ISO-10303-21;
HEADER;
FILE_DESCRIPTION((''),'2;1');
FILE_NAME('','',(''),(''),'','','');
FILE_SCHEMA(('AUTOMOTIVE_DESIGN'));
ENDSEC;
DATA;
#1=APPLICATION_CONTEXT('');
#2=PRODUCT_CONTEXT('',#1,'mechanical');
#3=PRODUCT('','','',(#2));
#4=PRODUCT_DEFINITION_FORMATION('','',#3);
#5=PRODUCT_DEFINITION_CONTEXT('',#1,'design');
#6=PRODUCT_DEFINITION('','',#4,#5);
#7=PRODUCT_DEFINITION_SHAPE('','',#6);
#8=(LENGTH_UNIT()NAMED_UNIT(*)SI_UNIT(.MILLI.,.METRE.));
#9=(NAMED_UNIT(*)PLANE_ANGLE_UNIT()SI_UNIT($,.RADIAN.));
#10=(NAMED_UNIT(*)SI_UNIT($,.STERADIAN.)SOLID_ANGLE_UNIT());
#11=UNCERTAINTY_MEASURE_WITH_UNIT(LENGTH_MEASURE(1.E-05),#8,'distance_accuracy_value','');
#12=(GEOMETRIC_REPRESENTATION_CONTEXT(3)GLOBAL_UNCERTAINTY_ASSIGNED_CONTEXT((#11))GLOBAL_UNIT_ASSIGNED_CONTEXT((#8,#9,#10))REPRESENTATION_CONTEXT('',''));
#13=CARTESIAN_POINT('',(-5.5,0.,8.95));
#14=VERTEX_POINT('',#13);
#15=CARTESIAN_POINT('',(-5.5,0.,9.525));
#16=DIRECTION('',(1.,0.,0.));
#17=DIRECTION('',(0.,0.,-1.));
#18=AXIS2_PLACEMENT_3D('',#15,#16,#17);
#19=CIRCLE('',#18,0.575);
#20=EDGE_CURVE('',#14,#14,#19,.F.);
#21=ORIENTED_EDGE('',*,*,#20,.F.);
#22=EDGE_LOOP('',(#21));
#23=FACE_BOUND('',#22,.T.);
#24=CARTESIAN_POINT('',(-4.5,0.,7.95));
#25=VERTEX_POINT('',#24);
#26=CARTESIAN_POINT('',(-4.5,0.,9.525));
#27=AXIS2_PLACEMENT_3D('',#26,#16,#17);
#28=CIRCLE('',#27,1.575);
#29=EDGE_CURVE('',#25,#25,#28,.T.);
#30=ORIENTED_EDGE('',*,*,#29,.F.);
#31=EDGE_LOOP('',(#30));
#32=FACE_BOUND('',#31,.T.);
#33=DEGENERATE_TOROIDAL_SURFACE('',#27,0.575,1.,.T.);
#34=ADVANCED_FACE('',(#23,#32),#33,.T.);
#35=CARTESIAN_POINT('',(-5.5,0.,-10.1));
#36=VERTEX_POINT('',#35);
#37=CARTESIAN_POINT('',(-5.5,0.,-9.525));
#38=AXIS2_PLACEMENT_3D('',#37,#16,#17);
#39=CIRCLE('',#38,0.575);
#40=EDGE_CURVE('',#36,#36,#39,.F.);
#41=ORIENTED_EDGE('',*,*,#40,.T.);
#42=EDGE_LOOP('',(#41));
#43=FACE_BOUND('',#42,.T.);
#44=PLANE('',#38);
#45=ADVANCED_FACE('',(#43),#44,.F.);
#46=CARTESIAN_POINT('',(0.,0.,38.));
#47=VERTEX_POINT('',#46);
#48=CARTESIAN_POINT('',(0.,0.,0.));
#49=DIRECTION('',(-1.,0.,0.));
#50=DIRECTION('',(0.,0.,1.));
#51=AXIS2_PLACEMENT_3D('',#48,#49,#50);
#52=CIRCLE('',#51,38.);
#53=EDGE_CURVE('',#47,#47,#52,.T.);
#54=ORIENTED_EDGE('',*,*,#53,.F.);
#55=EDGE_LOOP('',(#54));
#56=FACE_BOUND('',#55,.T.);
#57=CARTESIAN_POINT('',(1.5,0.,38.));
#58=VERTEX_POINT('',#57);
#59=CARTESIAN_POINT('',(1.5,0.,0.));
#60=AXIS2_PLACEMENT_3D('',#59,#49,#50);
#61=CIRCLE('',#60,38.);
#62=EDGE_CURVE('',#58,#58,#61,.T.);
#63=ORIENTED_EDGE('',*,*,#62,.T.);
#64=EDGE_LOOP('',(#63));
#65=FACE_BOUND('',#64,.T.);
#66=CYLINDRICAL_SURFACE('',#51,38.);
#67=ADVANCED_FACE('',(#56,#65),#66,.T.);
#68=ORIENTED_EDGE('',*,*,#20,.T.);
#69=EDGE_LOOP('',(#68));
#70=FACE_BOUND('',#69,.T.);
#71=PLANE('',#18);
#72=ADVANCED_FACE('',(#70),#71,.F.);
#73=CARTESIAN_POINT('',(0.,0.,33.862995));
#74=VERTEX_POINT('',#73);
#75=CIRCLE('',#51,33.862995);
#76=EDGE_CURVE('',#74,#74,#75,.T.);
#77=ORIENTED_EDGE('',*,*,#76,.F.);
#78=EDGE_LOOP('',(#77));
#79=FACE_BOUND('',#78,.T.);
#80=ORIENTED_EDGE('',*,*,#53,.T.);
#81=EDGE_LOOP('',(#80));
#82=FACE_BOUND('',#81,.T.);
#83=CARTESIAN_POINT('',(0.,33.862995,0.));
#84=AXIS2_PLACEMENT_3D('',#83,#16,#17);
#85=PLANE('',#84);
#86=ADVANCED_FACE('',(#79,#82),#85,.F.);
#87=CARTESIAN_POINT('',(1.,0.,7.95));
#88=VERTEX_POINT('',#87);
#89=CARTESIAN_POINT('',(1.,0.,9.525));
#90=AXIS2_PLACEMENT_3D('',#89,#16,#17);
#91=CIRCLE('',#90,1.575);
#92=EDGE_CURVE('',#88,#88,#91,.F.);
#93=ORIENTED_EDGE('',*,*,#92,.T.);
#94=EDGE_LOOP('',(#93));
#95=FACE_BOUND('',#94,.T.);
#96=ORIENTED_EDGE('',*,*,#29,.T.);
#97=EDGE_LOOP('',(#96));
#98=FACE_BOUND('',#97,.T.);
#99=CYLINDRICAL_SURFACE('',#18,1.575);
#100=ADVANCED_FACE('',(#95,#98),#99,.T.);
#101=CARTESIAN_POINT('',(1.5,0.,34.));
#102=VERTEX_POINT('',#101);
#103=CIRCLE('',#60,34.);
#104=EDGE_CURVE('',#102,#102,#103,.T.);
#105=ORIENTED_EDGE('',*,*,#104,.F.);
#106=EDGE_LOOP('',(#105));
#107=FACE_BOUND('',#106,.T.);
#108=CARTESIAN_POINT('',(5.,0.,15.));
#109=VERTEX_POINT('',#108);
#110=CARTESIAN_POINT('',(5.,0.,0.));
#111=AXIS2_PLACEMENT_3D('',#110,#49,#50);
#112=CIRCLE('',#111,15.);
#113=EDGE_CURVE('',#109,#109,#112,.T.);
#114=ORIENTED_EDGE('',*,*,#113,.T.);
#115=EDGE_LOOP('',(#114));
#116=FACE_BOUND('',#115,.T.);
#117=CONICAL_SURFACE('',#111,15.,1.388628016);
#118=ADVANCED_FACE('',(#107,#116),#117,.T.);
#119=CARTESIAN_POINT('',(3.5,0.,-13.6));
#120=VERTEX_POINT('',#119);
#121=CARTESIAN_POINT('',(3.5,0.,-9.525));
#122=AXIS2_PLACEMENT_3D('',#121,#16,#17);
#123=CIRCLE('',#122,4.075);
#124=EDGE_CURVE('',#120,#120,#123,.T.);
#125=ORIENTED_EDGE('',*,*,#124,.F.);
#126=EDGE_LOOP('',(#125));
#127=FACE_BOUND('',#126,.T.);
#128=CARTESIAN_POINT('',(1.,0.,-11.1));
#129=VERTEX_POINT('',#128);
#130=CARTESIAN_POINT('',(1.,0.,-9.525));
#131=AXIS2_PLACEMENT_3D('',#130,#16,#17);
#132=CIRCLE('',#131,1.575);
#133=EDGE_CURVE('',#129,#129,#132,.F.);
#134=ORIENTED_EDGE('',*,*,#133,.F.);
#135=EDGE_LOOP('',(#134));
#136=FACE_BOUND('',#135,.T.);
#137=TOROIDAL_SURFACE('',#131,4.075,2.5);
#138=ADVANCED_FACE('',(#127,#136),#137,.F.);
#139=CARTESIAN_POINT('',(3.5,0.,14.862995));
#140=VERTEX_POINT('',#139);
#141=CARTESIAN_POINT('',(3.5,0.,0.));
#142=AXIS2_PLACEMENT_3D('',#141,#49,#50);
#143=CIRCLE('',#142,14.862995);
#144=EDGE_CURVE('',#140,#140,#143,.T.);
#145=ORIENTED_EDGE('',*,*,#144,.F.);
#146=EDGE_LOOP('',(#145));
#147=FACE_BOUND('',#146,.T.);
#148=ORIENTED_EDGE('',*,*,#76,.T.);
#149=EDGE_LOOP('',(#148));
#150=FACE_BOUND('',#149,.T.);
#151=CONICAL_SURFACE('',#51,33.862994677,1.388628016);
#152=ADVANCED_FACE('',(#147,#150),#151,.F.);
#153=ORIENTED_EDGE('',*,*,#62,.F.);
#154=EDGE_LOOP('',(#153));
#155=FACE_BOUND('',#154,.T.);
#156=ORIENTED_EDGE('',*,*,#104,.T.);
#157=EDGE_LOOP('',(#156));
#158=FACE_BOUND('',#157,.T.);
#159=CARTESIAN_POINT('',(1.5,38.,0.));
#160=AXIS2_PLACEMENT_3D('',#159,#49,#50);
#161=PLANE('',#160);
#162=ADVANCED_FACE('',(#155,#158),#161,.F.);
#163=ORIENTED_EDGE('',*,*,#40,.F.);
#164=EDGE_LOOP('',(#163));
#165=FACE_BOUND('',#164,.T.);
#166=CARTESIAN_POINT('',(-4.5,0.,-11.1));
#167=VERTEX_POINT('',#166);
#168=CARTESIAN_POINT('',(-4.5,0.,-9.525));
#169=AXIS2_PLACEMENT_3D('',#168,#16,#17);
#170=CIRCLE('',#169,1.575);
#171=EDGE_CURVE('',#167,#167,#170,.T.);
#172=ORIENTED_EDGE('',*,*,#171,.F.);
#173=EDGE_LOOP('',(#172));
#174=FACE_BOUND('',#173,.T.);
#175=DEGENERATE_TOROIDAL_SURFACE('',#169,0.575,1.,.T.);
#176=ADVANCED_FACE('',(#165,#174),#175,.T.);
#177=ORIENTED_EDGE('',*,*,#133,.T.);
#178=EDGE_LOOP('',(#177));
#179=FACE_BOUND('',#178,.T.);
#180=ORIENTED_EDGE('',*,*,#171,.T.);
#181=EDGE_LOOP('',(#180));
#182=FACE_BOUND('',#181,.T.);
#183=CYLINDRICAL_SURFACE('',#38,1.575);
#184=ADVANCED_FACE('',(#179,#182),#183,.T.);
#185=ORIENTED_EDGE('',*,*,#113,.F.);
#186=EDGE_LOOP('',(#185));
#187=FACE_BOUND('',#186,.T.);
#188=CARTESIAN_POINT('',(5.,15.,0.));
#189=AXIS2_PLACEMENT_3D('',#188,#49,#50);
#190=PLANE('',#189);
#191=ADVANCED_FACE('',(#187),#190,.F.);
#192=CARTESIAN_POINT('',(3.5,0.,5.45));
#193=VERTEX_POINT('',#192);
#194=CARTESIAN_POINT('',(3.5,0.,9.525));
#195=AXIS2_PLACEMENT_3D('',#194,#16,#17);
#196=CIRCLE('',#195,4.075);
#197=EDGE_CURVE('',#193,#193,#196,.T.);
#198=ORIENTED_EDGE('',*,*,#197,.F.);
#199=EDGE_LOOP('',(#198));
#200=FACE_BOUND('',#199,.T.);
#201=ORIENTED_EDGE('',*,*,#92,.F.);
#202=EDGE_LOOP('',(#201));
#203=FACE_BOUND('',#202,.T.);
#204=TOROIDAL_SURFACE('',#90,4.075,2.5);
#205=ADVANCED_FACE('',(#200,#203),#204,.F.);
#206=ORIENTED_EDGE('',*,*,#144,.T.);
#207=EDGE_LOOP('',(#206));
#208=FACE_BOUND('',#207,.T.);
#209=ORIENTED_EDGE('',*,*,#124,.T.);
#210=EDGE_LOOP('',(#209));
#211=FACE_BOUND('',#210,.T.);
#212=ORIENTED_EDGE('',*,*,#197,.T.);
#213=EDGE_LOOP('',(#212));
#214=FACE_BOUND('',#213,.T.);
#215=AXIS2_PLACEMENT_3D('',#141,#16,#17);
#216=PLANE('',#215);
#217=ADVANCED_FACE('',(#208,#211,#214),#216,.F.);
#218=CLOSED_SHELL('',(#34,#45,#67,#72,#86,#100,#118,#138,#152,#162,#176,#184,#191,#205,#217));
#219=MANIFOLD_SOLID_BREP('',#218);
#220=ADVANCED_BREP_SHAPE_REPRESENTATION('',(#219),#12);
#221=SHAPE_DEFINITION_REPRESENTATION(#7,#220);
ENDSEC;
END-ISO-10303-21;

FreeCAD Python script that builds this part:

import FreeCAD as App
import Part
import Sketcher
Q = App.Units.Quantity


def edges_at(feature, points):
    """Names of the edges that pass closest to the given points."""
    edges = feature.Shape.Edges
    near = lambda p: min(range(len(edges)), key=lambda i: edges[i].distToShape(Part.Vertex(*p))[0])
    return sorted({f"Edge{near(p) + 1}" for p in points})

doc = App.newDocument("Part")
body = doc.addObject("PartDesign::Body", "Body")

sketch1 = body.newObject("Sketcher::SketchObject", "Sketch")
sketch1.AttachmentSupport = (doc.getObject("XY_Plane"), [""])
sketch1.MapMode = "FlatFace"
sketch1.addGeometry([
    Part.LineSegment(App.Vector(0, 38, 0), App.Vector(0, 33.862995, 0)),
    Part.LineSegment(App.Vector(0, 33.862995, 0), App.Vector(3.5, 14.862995, 0)),
    Part.LineSegment(App.Vector(3.5, 14.862995, 0), App.Vector(3.5, 0, 0)),
    Part.LineSegment(App.Vector(3.5, 0, 0), App.Vector(5, 0, 0)),
    Part.LineSegment(App.Vector(5, 0, 0), App.Vector(5, 15, 0)),
    Part.LineSegment(App.Vector(5, 15, 0), App.Vector(1.5, 34, 0)),
    Part.LineSegment(App.Vector(1.5, 34, 0), App.Vector(1.5, 38, 0)),
    Part.LineSegment(App.Vector(1.5, 38, 0), App.Vector(0, 38, 0)),
], False)
sketch1.addConstraint([
    Sketcher.Constraint("Coincident", 0, 2, 1, 1),
    Sketcher.Constraint("Coincident", 1, 2, 2, 1),
    Sketcher.Constraint("Coincident", 2, 2, 3, 1),
    Sketcher.Constraint("Coincident", 3, 2, 4, 1),
    Sketcher.Constraint("Coincident", 4, 2, 5, 1),
    Sketcher.Constraint("Coincident", 5, 2, 6, 1),
    Sketcher.Constraint("Coincident", 6, 2, 7, 1),
    Sketcher.Constraint("Coincident", 7, 2, 0, 1),
    Sketcher.Constraint("Vertical", 0),
    Sketcher.Constraint("Vertical", 2),
    Sketcher.Constraint("Horizontal", 3),
    Sketcher.Constraint("Vertical", 4),
    Sketcher.Constraint("Vertical", 6),
    Sketcher.Constraint("Horizontal", 7),
    Sketcher.Constraint("PointOnObject", 0, 2, -2),
    Sketcher.Constraint("PointOnObject", 2, 2, -1),
    Sketcher.Constraint("Parallel", 1, 5),
    Sketcher.Constraint("Equal", 3, 7),
    Sketcher.Constraint("DistanceY", 4, 1, 4, 2, Q("15 mm")),
    Sketcher.Constraint("DistanceY", 6, 1, 6, 2, Q("4 mm")),
    Sketcher.Constraint("DistanceX", 3, 1, 3, 2, Q("1.5 mm")),
    Sketcher.Constraint("DistanceX", -1, 1, 3, 2, Q("5 mm")),
    Sketcher.Constraint("DistanceY", -1, 1, 5, 2, Q("34 mm")),
    Sketcher.Constraint("DistanceY", 0, 2, 0, 1, Q("4.137005 mm")),
])
revolution = body.newObject("PartDesign::Revolution", "Revolution")
revolution.Profile = sketch1
revolution.ReferenceAxis = (sketch1, ["H_Axis"])
revolution.Angle = 360

sketch2 = body.newObject("Sketcher::SketchObject", "Sketch001")
sketch2.AttachmentSupport = (doc.getObject("YZ_Plane"), [""])
sketch2.MapMode = "FlatFace"
sketch2.AttachmentOffset = App.Placement(App.Vector(0, 0, 3.5), App.Rotation())
sketch2.addGeometry([
    Part.Circle(App.Vector(0, -9.525, 0), App.Vector(0, 0, 1), 1.575),
    Part.Circle(App.Vector(0, 9.525, 0), App.Vector(0, 0, 1), 1.575),
], False)
sketch2.addConstraint([
    Sketcher.Constraint("Equal", 0, 1),
    Sketcher.Constraint("Symmetric", 0, 3, 1, 3, -1, 1),
    Sketcher.Constraint("PointOnObject", 0, 3, -2),
    Sketcher.Constraint("Diameter", 0, Q("3.15 mm")),
    Sketcher.Constraint("DistanceY", 0, 3, 1, 3, Q("19.05 mm")),
])
pad1 = body.newObject("PartDesign::Pad", "Pad")
pad1.Profile = sketch2
pad1.Length = 9
pad1.Reversed = True
doc.recompute()

fillet = body.newObject("PartDesign::Fillet", "Fillet")
fillet.Base = (pad1, edges_at(pad1, [(-5.5, 0, -7.95), (-5.5, 0, 11.1)]))
fillet.Radius = 1
doc.recompute()

fillet2 = body.newObject("PartDesign::Fillet", "Fillet001")
fillet2.Base = (fillet, edges_at(fillet, [(3.5, 0, -7.95), (3.5, 0, 11.1)]))
fillet2.Radius = 2.5

doc.recompute()
